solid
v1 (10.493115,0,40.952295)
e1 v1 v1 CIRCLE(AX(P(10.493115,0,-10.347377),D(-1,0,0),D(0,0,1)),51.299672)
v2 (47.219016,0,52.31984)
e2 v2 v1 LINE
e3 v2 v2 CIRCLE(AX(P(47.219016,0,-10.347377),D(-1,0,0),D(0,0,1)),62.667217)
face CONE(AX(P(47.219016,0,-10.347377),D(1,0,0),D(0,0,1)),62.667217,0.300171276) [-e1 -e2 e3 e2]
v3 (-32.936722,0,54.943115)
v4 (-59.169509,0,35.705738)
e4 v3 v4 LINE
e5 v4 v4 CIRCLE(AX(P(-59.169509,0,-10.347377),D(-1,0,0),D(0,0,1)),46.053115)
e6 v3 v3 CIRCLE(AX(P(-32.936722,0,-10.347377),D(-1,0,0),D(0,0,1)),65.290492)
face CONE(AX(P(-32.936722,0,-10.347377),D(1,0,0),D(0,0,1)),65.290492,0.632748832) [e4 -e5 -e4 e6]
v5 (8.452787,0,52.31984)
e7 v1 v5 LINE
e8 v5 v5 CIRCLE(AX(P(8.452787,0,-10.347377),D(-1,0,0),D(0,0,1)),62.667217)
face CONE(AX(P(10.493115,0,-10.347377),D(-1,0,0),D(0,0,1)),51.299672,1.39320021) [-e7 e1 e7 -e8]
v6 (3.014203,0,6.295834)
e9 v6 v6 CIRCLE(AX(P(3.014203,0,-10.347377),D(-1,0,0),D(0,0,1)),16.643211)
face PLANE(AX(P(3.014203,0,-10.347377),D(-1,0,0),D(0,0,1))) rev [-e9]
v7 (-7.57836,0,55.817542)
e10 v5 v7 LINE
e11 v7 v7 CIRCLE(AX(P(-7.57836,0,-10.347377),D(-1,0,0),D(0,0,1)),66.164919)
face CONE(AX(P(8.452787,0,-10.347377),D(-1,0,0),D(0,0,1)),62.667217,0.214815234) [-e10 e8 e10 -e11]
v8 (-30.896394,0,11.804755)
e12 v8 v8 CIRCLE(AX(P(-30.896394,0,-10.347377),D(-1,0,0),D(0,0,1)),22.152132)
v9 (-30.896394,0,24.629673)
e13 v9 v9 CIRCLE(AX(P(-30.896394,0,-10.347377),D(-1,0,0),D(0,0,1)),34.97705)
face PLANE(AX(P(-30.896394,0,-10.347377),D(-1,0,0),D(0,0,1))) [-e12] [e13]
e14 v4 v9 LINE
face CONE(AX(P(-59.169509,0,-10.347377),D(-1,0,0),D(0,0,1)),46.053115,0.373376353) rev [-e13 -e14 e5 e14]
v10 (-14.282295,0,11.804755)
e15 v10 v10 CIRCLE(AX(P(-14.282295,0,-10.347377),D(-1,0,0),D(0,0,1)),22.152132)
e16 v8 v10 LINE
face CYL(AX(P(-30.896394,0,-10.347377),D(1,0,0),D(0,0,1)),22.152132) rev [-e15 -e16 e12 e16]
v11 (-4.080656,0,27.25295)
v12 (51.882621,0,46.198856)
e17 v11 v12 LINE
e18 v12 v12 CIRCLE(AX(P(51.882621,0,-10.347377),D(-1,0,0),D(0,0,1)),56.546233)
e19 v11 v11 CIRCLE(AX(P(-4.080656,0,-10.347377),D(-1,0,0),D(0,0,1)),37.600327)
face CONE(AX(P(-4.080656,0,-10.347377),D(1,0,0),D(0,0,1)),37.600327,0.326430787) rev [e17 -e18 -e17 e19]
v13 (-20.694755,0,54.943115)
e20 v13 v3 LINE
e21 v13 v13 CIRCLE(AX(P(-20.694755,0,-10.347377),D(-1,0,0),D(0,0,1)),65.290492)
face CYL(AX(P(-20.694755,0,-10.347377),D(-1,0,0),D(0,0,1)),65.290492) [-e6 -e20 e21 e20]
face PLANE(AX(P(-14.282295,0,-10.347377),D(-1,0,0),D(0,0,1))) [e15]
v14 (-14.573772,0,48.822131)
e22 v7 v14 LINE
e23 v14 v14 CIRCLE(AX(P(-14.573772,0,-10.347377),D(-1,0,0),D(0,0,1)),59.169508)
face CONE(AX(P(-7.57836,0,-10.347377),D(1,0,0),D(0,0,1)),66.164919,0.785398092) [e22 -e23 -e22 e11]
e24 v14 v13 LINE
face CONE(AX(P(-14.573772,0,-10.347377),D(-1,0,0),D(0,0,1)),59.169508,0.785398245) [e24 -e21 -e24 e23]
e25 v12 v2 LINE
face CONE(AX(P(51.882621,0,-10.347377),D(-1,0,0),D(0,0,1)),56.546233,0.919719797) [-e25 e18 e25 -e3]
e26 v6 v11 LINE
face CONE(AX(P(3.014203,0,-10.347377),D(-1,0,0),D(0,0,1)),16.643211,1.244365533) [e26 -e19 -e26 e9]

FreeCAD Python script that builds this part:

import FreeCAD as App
import Part
import Sketcher
from FreeCAD import Vector
Q = App.Units.Quantity

doc = App.newDocument("Part")
body = doc.addObject("PartDesign::Body", "Body")

sketch1 = body.newObject("Sketcher::SketchObject", "Sketch")
sketch1.AttachmentSupport = (doc.getObject("XZ_Plane"), [""])
sketch1.MapMode = "FlatFace"
sketch1.addGeometry(Part.LineSegment(Vector(-21, 55, 0), Vector(-33, 55, 0)), False)
sketch1.addGeometry(Part.LineSegment(Vector(-33, 55, 0), Vector(-59, 36, 0)), False)
sketch1.addGeometry(Part.LineSegment(Vector(-59, 36, 0), Vector(-31, 25, 0)), False)
sketch1.addGeometry(Part.LineSegment(Vector(-31, 25, 0), Vector(-31, 12, 0)), False)
sketch1.addGeometry(Part.LineSegment(Vector(-31, 12, 0), Vector(-14, 12, 0)), False)
sketch1.addGeometry(Part.LineSegment(Vector(-14, 12, 0), Vector(-14, -10, 0)), False)
sketch1.addGeometry(Part.LineSegment(Vector(-14, -10, 0), Vector(3, -10, 0)), False)
sketch1.addGeometry(Part.LineSegment(Vector(3, -10, 0), Vector(3, 6, 0)), False)
sketch1.addGeometry(Part.LineSegment(Vector(3, 6, 0), Vector(-4, 27, 0)), False)
sketch1.addGeometry(Part.LineSegment(Vector(-4, 27, 0), Vector(52, 46, 0)), False)
sketch1.addGeometry(Part.LineSegment(Vector(52, 46, 0), Vector(47, 52, 0)), False)
sketch1.addGeometry(Part.LineSegment(Vector(47, 52, 0), Vector(10, 41, 0)), False)
sketch1.addGeometry(Part.LineSegment(Vector(10, 41, 0), Vector(8, 52, 0)), False)
sketch1.addGeometry(Part.LineSegment(Vector(8, 52, 0), Vector(-8, 56, 0)), False)
sketch1.addGeometry(Part.LineSegment(Vector(-8, 56, 0), Vector(-15, 49, 0)), False)
sketch1.addGeometry(Part.LineSegment(Vector(-15, 49, 0), Vector(-21, 55, 0)), False)
sketch1.addGeometry(Part.LineSegment(Vector(52, -10, 0), Vector(-59, -10, 0)), True)
sketch1.addConstraint(Sketcher.Constraint("Coincident", 0, 2, 1, 1))
sketch1.addConstraint(Sketcher.Constraint("Coincident", 1, 2, 2, 1))
sketch1.addConstraint(Sketcher.Constraint("Coincident", 2, 2, 3, 1))
sketch1.addConstraint(Sketcher.Constraint("Coincident", 3, 2, 4, 1))
sketch1.addConstraint(Sketcher.Constraint("Coincident", 4, 2, 5, 1))
sketch1.addConstraint(Sketcher.Constraint("Coincident", 5, 2, 6, 1))
sketch1.addConstraint(Sketcher.Constraint("Coincident", 6, 2, 7, 1))
sketch1.addConstraint(Sketcher.Constraint("Coincident", 7, 2, 8, 1))
sketch1.addConstraint(Sketcher.Constraint("Coincident", 8, 2, 9, 1))
sketch1.addConstraint(Sketcher.Constraint("Coincident", 9, 2, 10, 1))
sketch1.addConstraint(Sketcher.Constraint("Coincident", 10, 2, 11, 1))
sketch1.addConstraint(Sketcher.Constraint("Coincident", 11, 2, 12, 1))
sketch1.addConstraint(Sketcher.Constraint("Coincident", 12, 2, 13, 1))
sketch1.addConstraint(Sketcher.Constraint("Coincident", 13, 2, 14, 1))
sketch1.addConstraint(Sketcher.Constraint("Coincident", 14, 2, 15, 1))
sketch1.addConstraint(Sketcher.Constraint("Coincident", 15, 2, 0, 1))
sketch1.addConstraint(Sketcher.Constraint("Horizontal", 0))
sketch1.addConstraint(Sketcher.Constraint("Vertical", 3))
sketch1.addConstraint(Sketcher.Constraint("Horizontal", 4))
sketch1.addConstraint(Sketcher.Constraint("Vertical", 5))
sketch1.addConstraint(Sketcher.Constraint("Horizontal", 6))
sketch1.addConstraint(Sketcher.Constraint("Vertical", 7))
sketch1.addConstraint(Sketcher.Constraint("Horizontal", 16))
sketch1.addConstraint(Sketcher.Constraint("Perpendicular", 8, 9))
sketch1.addConstraint(Sketcher.Constraint("Perpendicular", 14, 15))
sketch1.addConstraint(Sketcher.Constraint("Horizontal", 10, 2, 12, 2))
sketch1.addConstraint(Sketcher.Constraint("Horizontal", 6, 2, 16, 1))
sketch1.addConstraint(Sketcher.Constraint("Vertical", 9, 2, 16, 1))
sketch1.addConstraint(Sketcher.Constraint("Vertical", 1, 2, 16, 2))
sketch1.addConstraint(Sketcher.Constraint("Angle", 14, Q("-135.000004 deg")))
sketch1.addConstraint(Sketcher.Constraint("DistanceX", 4, 1, 4, 2, Q("16.614099 mm")))
sketch1.addConstraint(Sketcher.Constraint("Distance", 8, Q("22.1255 mm")))
sketch1.addConstraint(Sketcher.Constraint("Distance", 12, Q("11.5492 mm")))
sketch1.addConstraint(Sketcher.Constraint("DistanceX", 16, 2, 16, 1, Q("111.05213 mm")))
sketch1.addConstraint(Sketcher.Constraint("DistanceY", 7, 1, 7, 2, Q("16.643211 mm")))
sketch1.addConstraint(Sketcher.Constraint("DistanceY", 4, 2, 9, 2, Q("34.394101 mm")))
sketch1.addConstraint(Sketcher.Constraint("DistanceX", 11, 2, 10, 2, Q("36.725901 mm")))
sketch1.addConstraint(Sketcher.Constraint("Distance", 10, Q("7.695171 mm")))
sketch1.addConstraint(Sketcher.Constraint("Distance", 13, Q("16.408278 mm")))
sketch1.addConstraint(Sketcher.Constraint("DistanceX", 0, 2, 0, 1, Q("12.241967 mm")))
sketch1.addConstraint(Sketcher.Constraint("DistanceX", 6, 1, 6, 2, Q("17.296498 mm")))
sketch1.addConstraint(Sketcher.Constraint("DistanceY", 3, 2, 3, 1, Q("12.824918 mm")))
sketch1.addConstraint(Sketcher.Constraint("DistanceY", 5, 2, 5, 1, Q("22.152132 mm")))
sketch1.addConstraint(Sketcher.Constraint("DistanceX", 1, 2, -1, 1, Q("59.169509 mm")))
sketch1.addConstraint(Sketcher.Constraint("DistanceY", -1, 1, 8, 2, Q("27.25295 mm")))
sketch1.addConstraint(Sketcher.Constraint("DistanceY", -1, 1, 10, 2, Q("52.31984 mm")))
sketch1.addConstraint(Sketcher.Constraint("DistanceX", 13, 2, -1, 1, Q("7.57836 mm")))
sketch1.addConstraint(Sketcher.Constraint("DistanceY", -1, 1, 14, 2, Q("48.822131 mm")))
sketch1.addConstraint(Sketcher.Constraint("DistanceX", 0, 2, 2, 2, Q("2.040328 mm")))
sketch1.addConstraint(Sketcher.Constraint("DistanceY", 2, 2, 0, 2, Q("30.313442 mm")))
sketch1.addConstraint(Sketcher.Constraint("DistanceX", 4, 2, 8, 2, Q("10.201639 mm")))
sketch1.addConstraint(Sketcher.Constraint("Distance", 1, Q("32.530536 mm")))
revolution = body.newObject("PartDesign::Revolution", "Revolution")
revolution.Profile = sketch1
revolution.ReferenceAxis = (sketch1, ["Axis0"])
revolution.Angle = 360

doc.recompute()
